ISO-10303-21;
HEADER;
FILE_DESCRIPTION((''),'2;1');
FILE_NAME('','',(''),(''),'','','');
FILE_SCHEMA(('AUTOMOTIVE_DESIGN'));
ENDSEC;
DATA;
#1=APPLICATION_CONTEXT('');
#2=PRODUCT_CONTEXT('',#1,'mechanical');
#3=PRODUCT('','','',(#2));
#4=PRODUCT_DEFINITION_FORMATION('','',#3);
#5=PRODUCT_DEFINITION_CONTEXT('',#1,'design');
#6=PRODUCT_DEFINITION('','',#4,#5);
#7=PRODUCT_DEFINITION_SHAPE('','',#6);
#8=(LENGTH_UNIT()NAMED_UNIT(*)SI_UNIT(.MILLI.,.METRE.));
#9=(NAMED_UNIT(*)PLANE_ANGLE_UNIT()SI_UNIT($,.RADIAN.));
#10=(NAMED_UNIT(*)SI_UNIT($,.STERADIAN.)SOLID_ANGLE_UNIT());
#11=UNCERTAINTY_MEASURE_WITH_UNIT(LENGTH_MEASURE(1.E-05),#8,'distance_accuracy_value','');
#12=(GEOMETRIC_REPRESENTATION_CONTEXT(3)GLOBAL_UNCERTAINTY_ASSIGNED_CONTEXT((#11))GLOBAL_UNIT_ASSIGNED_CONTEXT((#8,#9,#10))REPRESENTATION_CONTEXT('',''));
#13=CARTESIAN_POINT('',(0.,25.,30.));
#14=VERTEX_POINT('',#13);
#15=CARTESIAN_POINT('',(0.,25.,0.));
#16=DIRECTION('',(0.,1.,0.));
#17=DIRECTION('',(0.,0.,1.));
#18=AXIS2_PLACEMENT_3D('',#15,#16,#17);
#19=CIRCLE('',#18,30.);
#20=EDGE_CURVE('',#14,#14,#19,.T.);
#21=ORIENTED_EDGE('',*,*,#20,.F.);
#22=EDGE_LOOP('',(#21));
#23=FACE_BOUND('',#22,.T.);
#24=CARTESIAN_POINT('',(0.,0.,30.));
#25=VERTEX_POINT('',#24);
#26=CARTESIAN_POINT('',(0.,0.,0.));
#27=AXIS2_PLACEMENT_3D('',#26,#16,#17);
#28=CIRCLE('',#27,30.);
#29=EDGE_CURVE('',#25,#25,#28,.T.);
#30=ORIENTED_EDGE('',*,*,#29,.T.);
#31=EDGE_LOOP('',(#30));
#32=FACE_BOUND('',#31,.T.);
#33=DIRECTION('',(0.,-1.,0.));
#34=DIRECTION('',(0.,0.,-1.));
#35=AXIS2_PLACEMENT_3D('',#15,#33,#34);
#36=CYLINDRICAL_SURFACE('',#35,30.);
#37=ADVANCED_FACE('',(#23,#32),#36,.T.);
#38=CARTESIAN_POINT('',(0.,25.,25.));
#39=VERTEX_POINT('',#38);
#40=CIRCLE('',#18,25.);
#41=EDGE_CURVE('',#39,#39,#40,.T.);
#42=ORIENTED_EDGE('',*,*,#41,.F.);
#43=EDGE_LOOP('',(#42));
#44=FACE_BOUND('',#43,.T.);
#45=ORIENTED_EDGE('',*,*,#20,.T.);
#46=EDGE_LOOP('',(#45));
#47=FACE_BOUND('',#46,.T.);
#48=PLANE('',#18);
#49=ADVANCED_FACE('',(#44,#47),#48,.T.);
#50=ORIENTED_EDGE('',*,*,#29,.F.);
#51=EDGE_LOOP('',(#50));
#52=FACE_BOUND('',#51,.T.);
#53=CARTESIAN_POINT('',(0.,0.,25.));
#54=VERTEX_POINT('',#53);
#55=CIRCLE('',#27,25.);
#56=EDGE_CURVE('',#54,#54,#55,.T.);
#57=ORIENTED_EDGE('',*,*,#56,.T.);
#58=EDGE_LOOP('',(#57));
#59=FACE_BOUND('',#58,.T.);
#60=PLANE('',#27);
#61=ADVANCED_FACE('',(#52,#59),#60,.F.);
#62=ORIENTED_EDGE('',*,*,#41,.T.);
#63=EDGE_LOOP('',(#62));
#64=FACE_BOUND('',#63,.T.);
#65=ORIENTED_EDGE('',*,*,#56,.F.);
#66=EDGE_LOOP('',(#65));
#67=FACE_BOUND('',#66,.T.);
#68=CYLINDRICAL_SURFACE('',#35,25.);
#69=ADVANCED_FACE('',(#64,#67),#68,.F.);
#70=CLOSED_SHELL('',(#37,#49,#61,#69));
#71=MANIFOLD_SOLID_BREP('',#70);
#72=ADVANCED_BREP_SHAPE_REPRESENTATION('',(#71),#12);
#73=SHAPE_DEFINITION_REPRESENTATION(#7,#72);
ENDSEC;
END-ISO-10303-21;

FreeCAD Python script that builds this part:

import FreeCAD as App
import Part
import Sketcher
from FreeCAD import Vector

doc = App.newDocument("Part")
body = doc.addObject("PartDesign::Body", "Body")

# Sketch on XZ plane
sketch1 = body.newObject("Sketcher::SketchObject", "Sketch")
sketch1.AttachmentSupport = (doc.getObject("XZ_Plane"), [""])
sketch1.MapMode = "FlatFace"
sketch1.addGeometry([
    Part.Circle(Vector(0, 0, 0), Vector(0, 0, 1), 30),
    Part.Circle(Vector(0, 0, 0), Vector(0, 0, 1), 25),
], False)
sketch1.addConstraint([
    Sketcher.Constraint("Coincident", 0, 3, -1, 1),
    Sketcher.Constraint("Coincident", 1, 3, -1, 1),
    Sketcher.Constraint("Diameter", 0, 60.0),
    Sketcher.Constraint("Diameter", 1, 50.0),
])
pad1 = body.newObject("PartDesign::Pad", "Pad")
pad1.Profile = sketch1
pad1.Length = 25
pad1.Reversed = True

doc.recompute()
